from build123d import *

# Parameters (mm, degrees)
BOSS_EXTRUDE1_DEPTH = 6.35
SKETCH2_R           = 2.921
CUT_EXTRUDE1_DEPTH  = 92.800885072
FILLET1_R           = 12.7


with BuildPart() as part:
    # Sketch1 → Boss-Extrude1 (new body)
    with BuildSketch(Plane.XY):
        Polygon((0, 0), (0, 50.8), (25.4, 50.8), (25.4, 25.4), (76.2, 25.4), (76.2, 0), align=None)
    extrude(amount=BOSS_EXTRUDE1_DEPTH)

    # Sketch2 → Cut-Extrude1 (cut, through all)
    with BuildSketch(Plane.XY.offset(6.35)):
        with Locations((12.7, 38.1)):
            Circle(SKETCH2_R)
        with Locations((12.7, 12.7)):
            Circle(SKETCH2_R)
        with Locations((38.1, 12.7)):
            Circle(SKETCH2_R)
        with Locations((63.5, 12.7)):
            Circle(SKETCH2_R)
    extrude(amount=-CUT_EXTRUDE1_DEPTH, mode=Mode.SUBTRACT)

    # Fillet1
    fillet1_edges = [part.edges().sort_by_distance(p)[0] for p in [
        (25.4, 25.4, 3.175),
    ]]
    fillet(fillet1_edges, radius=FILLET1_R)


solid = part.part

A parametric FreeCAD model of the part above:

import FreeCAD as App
import Part
import Sketcher
from FreeCAD import Vector
Q = App.Units.Quantity


def edges_at(feature, points):
    """Names of the edges that pass closest to the given points."""
    edges = feature.Shape.Edges
    near = lambda p: min(range(len(edges)), key=lambda i: edges[i].distToShape(Part.Vertex(*p))[0])
    return sorted({f"Edge{near(p) + 1}" for p in points})


def add_polygon(sketch, points):
    """Adds a closed chain of lines whose ends are joined by coincident constraints."""
    first, n = sketch.GeometryCount, len(points)
    for a, b in zip(points, points[1:] + points[:1]):
        sketch.addGeometry(Part.LineSegment(App.Vector(*a, 0), App.Vector(*b, 0)), False)
    for i in range(n):
        sketch.addConstraint(Sketcher.Constraint("Coincident", first + i, 2, first + (i + 1) % n, 1))

doc = App.newDocument("Part")
body = doc.addObject("PartDesign::Body", "Body")

sketch1 = body.newObject("Sketcher::SketchObject", "Sketch")
sketch1.AttachmentSupport = (doc.getObject("XY_Plane"), [""])
sketch1.MapMode = "FlatFace"
add_polygon(sketch1, [(0, 51), (0, 0), (76, 0), (76, 25), (25, 25), (25, 51)])
sketch1.addConstraint([
    Sketcher.Constraint("Vertical", 0),
    Sketcher.Constraint("Horizontal", 1),
    Sketcher.Constraint("Vertical", 2),
    Sketcher.Constraint("Horizontal", 3),
    Sketcher.Constraint("Vertical", 4),
    Sketcher.Constraint("Horizontal", 5),
    Sketcher.Constraint("Coincident", 0, 2, -1, 1),
    Sketcher.Constraint("Equal", 3, 0),
    Sketcher.Constraint("Equal", 5, 2),
    Sketcher.Constraint("Equal", 2, 4),
    Sketcher.Constraint("DistanceX", 1, 1, 1, 2, Q("3 in")),
])
pad1 = body.newObject("PartDesign::Pad", "Pad")
pad1.Profile = sketch1
pad1.Length = Q("0.25 in")

sketch2 = body.newObject("Sketcher::SketchObject", "Sketch001")
sketch2.AttachmentSupport = (doc.getObject("XY_Plane"), [""])
sketch2.MapMode = "FlatFace"
sketch2.AttachmentOffset = App.Placement(Vector(0, 0, 0.25 * 25.4), App.Rotation())
sketch2.addGeometry([
    Part.Circle(Vector(12.7, 38.1, 0), Vector(0, 0, 1), 2.9),
    Part.Circle(Vector(12.7, 12.7, 0), Vector(0, 0, 1), 2.9),
    Part.Circle(Vector(38.1, 12.7, 0), Vector(0, 0, 1), 2.9),
    Part.Circle(Vector(63.5, 12.7, 0), Vector(0, 0, 1), 2.9),
], False)
sketch2.addConstraint([
    Sketcher.Constraint("Equal", 0, 1),
    Sketcher.Constraint("Equal", 1, 2),
    Sketcher.Constraint("Equal", 2, 3),
    Sketcher.Constraint("Horizontal", 1, 3, 2, 3),
    Sketcher.Constraint("Horizontal", 2, 3, 3, 3),
    Sketcher.Constraint("Vertical", 0, 3, 1, 3),
    Sketcher.Constraint("Diameter", 0, Q("0.23 in")),
    Sketcher.Constraint("DistanceY", 1, 3, 0, 3, Q("1 in")),
    Sketcher.Constraint("DistanceX", 1, 3, 2, 3, Q("1 in")),
    Sketcher.Constraint("DistanceX", 2, 3, 3, 3, Q("1 in")),
    Sketcher.Constraint("DistanceX", -1, 1, 0, 3, Q("0.5 in")),
    Sketcher.Constraint("DistanceY", -1, 1, 0, 3, Q("1.5 in")),
])
pocket1 = body.newObject("PartDesign::Pocket", "Pocket")
pocket1.Profile = sketch2
pocket1.Type = "ThroughAll"
doc.recompute()

fillet = body.newObject("PartDesign::Fillet", "Fillet")
fillet.Base = (pocket1, edges_at(pocket1, [(25.4, 25.4, 3.175)]))
fillet.Radius = Q("0.5 in")

doc.recompute()
